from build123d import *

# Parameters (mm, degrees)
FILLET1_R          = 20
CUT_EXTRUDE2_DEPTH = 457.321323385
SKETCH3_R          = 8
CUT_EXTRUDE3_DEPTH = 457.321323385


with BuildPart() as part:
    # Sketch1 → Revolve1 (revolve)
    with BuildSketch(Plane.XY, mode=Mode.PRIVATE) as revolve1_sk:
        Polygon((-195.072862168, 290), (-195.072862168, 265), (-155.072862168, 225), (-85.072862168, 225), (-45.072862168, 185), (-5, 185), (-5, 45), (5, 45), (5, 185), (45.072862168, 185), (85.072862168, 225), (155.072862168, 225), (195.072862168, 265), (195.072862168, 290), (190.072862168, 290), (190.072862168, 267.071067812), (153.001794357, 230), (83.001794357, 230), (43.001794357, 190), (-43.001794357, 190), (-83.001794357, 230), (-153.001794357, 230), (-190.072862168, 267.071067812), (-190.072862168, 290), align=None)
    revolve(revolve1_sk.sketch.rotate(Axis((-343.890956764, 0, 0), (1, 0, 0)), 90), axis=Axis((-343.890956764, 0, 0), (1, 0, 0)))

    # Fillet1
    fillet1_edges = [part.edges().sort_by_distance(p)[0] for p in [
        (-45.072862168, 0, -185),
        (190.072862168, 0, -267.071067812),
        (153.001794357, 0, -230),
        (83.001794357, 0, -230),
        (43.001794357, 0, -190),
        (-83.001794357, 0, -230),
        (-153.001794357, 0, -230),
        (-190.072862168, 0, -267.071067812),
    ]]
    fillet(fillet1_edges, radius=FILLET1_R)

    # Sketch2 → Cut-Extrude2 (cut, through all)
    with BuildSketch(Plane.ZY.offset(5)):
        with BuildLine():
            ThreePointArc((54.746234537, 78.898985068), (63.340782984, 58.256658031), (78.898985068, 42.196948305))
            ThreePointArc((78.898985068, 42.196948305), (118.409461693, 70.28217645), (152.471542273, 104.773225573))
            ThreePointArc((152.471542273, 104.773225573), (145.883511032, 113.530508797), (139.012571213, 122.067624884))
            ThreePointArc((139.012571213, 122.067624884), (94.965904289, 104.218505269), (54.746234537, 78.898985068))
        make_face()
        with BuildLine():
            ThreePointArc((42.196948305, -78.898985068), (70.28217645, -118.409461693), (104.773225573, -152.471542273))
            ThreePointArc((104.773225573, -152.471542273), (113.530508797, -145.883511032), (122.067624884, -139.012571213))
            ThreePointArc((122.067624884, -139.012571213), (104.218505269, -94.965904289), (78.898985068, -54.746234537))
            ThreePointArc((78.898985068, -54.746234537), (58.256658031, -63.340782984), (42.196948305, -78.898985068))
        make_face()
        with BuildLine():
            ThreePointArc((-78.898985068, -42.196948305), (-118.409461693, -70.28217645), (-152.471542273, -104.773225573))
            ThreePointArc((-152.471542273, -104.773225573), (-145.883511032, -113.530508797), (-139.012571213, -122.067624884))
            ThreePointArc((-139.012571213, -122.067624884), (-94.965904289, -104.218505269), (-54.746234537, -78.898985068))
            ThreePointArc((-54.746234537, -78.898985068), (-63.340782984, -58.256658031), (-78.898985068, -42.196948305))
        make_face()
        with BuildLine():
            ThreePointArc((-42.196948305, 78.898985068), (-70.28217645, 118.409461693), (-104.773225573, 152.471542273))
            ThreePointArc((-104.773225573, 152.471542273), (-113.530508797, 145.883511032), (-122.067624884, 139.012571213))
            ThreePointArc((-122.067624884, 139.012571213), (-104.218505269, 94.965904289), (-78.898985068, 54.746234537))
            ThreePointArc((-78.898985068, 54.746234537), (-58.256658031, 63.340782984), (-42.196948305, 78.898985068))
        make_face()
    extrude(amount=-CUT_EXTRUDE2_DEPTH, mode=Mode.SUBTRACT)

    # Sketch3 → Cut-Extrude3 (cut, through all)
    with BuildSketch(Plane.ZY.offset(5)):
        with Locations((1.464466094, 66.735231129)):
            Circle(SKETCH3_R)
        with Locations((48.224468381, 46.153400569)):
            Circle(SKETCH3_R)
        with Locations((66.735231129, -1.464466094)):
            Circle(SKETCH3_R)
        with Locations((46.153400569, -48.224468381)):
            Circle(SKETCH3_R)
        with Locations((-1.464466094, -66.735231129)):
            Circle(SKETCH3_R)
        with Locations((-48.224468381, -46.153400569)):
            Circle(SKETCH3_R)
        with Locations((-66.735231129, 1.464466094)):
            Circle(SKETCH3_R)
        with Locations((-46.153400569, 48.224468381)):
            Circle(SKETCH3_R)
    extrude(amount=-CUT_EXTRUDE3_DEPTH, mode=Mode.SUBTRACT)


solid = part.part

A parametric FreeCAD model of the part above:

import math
import FreeCAD as App
import Part
import Sketcher

V = App.Vector


def edges_at(feature, points):
    """Names of the edges that pass closest to the given points."""
    edges = feature.Shape.Edges
    near = lambda p: min(range(len(edges)), key=lambda i: edges[i].distToShape(Part.Vertex(*p))[0])
    return sorted({f"Edge{near(p) + 1}" for p in points})


def add_polygon(sketch, points):
    """Adds a closed chain of lines whose ends are joined by coincident constraints."""
    first, n = sketch.GeometryCount, len(points)
    for a, b in zip(points, points[1:] + points[:1]):
        sketch.addGeometry(Part.LineSegment(App.Vector(*a, 0), App.Vector(*b, 0)), False)
    for i in range(n):
        sketch.addConstraint(Sketcher.Constraint("Coincident", first + i, 2, first + (i + 1) % n, 1))

doc = App.newDocument("Part")
body = doc.addObject("PartDesign::Body", "Body")

sketch1 = doc.addObject("Sketcher::SketchObject", "Sketch")
body.addObject(sketch1)
sketch1.AttachmentSupport = (doc.XY_Plane, [""])
sketch1.MapMode = "FlatFace"
add_polygon(sketch1, [(-195, 290), (-195, 265), (-155, 225), (-85, 225), (-45, 185), (-5, 185), (-5, 45), (5, 45), (5, 185), (45, 185), (85, 225), (155, 225), (195, 265), (195, 290), (190, 290), (190, 267), (153, 230), (83, 230), (43, 190), (-43, 190), (-83, 230), (-153, 230), (-190, 267), (-190, 290)])
sketch1.addConstraint([
    Sketcher.Constraint("Vertical", 0),
    Sketcher.Constraint("Horizontal", 2),
    Sketcher.Constraint("Horizontal", 4),
    Sketcher.Constraint("Vertical", 5),
    Sketcher.Constraint("Horizontal", 6),
    Sketcher.Constraint("Vertical", 7),
    Sketcher.Constraint("Horizontal", 8),
    Sketcher.Constraint("Horizontal", 10),
    Sketcher.Constraint("Vertical", 12),
    Sketcher.Constraint("Horizontal", 13),
    Sketcher.Constraint("Vertical", 14),
    Sketcher.Constraint("Horizontal", 16),
    Sketcher.Constraint("Horizontal", 18),
    Sketcher.Constraint("Horizontal", 20),
    Sketcher.Constraint("Vertical", 22),
    Sketcher.Constraint("Horizontal", 23),
    Sketcher.Constraint("Symmetric", 4, 2, 7, 2, -2),
    Sketcher.Constraint("Symmetric", 2, 2, 9, 2, -2),
    Sketcher.Constraint("Symmetric", 0, 2, 11, 2, -2),
    Sketcher.Constraint("Symmetric", 16, 2, 19, 2, -2),
    Sketcher.Constraint("Symmetric", 14, 2, 21, 2, -2),
    Sketcher.Constraint("Parallel", 1, 3),
    Sketcher.Constraint("Perpendicular", 3, 9),
    Sketcher.Constraint("Parallel", 9, 11),
    Sketcher.Constraint("Parallel", 11, 15),
    Sketcher.Constraint("Parallel", 15, 17),
    Sketcher.Constraint("Perpendicular", 17, 19),
    Sketcher.Constraint("Parallel", 19, 21),
    Sketcher.Constraint("Horizontal", 13, 2, 22, 2),
    Sketcher.Constraint("Equal", 4, 8),
    Sketcher.Constraint("Equal", 10, 16),
    Sketcher.Constraint("Equal", 1, 3),
    Sketcher.Constraint("Equal", 11, 17),
    Sketcher.Constraint("DistanceX", 2, 1, 2, 2, 70.0),
    Sketcher.Constraint("DistanceX", 6, 1, 6, 2, 10.0),
    Sketcher.Constraint("DistanceX", 13, 2, 13, 1, 5.0),
    Sketcher.Constraint("DistanceY", 0, 2, 0, 1, 25.0),
    Sketcher.Constraint("DistanceY", 5, 2, 5, 1, 140.0),
    Sketcher.Constraint("DistanceY", -1, 1, 0, 2, 265.0),
    Sketcher.Constraint("DistanceY", -1, 1, 1, 2, 225.0),
    Sketcher.Constraint("DistanceY", -1, 1, 15, 2, 230.0),
    Sketcher.Constraint("DistanceX", 18, 2, 18, 1, 86.003589),
    Sketcher.Constraint("DistanceX", 4, 1, 4, 2, 40.072862),
])
revolution = doc.addObject("PartDesign::Revolution", "Revolution")
body.addObject(revolution)
revolution.Profile = sketch1
revolution.ReferenceAxis = (sketch1, ["H_Axis"])
revolution.Angle = 360
doc.recompute()

fillet = doc.addObject("PartDesign::Fillet", "Fillet")
body.addObject(fillet)
fillet.Base = (revolution, edges_at(revolution, [
    (-45.073, 0, -185),
    (190.073, 0, -267.071),
    (153.002, 0, -230),
    (83.002, 0, -230),
    (43.002, 0, -190),
    (-83.002, 0, -230),
    (-153.002, 0, -230),
    (-190.073, 0, -267.071),
]))
fillet.Radius = 20

sketch2 = doc.addObject("Sketcher::SketchObject", "Sketch001")
body.addObject(sketch2)
sketch2.AttachmentSupport = (doc.YZ_Plane, [""])
sketch2.MapMode = "FlatFace"
sketch2.AttachmentOffset = App.Placement(V(0, 0, -5), App.Rotation())
sketch2.addGeometry([
    Part.ArcOfCircle(Part.Circle(V(91, 113, 0), V(0, 0, 1), 60), math.radians(-145), math.radians(-102)),
    Part.ArcOfCircle(Part.Circle(V(283, -63, 0), V(0, 0, 1), 279), math.radians(129.67), math.radians(149.57)),
    Part.ArcOfCircle(Part.Circle(V(-92, -118, 0), V(0, 0, 1), 335), math.radians(50.23), math.radians(53.98)),
    Part.ArcOfCircle(Part.Circle(V(-135, 218, 0), V(0, 0, 1), 269), math.radians(-37), math.radians(-17)),
    Part.ArcOfCircle(Part.Circle(V(63, 283, 0), V(0, 0, 1), 279), math.radians(-140.33), math.radians(-120.43)),
    Part.ArcOfCircle(Part.Circle(V(118, -92, 0), V(0, 0, 1), 335), math.radians(140.23), math.radians(143.98)),
    Part.ArcOfCircle(Part.Circle(V(-218, -135, 0), V(0, 0, 1), 269), math.radians(53), math.radians(73)),
    Part.ArcOfCircle(Part.Circle(V(-113, 91, 0), V(0, 0, 1), 60), math.radians(-55), math.radians(-12)),
    Part.ArcOfCircle(Part.Circle(V(-283, 63, 0), V(0, 0, 1), 279), math.radians(-50.33), math.radians(-30.43)),
    Part.ArcOfCircle(Part.Circle(V(92, 118, 0), V(0, 0, 1), 335), math.radians(-129.77), math.radians(-126.02)),
    Part.ArcOfCircle(Part.Circle(V(135, -218, 0), V(0, 0, 1), 269), math.radians(143), math.radians(163)),
    Part.ArcOfCircle(Part.Circle(V(-91, -113, 0), V(0, 0, 1), 60), math.radians(35), math.radians(78)),
    Part.ArcOfCircle(Part.Circle(V(-63, -283, 0), V(0, 0, 1), 279), math.radians(39.67), math.radians(59.57)),
    Part.ArcOfCircle(Part.Circle(V(-118, 92, 0), V(0, 0, 1), 335), math.radians(-39.77), math.radians(-36.02)),
    Part.ArcOfCircle(Part.Circle(V(218, 135, 0), V(0, 0, 1), 269), math.radians(-127), math.radians(-107)),
    Part.ArcOfCircle(Part.Circle(V(113, -91, 0), V(0, 0, 1), 60), math.radians(125), math.radians(168)),
], False)
sketch2.addConstraint([
    Sketcher.Constraint("Coincident", 0, 1, 1, 2),
    Sketcher.Constraint("Coincident", 1, 1, 2, 2),
    Sketcher.Constraint("Coincident", 2, 1, 3, 2),
    Sketcher.Constraint("Coincident", 3, 1, 0, 2),
    Sketcher.Constraint("Coincident", 4, 1, 5, 2),
    Sketcher.Constraint("Coincident", 5, 1, 6, 2),
    Sketcher.Constraint("Coincident", 6, 1, 7, 2),
    Sketcher.Constraint("Coincident", 7, 1, 4, 2),
    Sketcher.Constraint("Coincident", 8, 1, 9, 2),
    Sketcher.Constraint("Coincident", 9, 1, 10, 2),
    Sketcher.Constraint("Coincident", 10, 1, 11, 2),
    Sketcher.Constraint("Coincident", 11, 1, 8, 2),
    Sketcher.Constraint("Coincident", 12, 1, 13, 2),
    Sketcher.Constraint("Coincident", 13, 1, 14, 2),
    Sketcher.Constraint("Coincident", 14, 1, 15, 2),
    Sketcher.Constraint("Coincident", 15, 1, 12, 2),
    Sketcher.Constraint("Equal", 1, 4),
    Sketcher.Constraint("Equal", 2, 5),
    Sketcher.Constraint("Equal", 3, 6),
    Sketcher.Constraint("Equal", 0, 7),
    Sketcher.Constraint("Equal", 4, 8),
    Sketcher.Constraint("Equal", 5, 9),
    Sketcher.Constraint("Equal", 6, 10),
    Sketcher.Constraint("Equal", 7, 11),
    Sketcher.Constraint("Equal", 8, 12),
    Sketcher.Constraint("Equal", 9, 13),
    Sketcher.Constraint("Equal", 10, 14),
    Sketcher.Constraint("Equal", 11, 15),
    Sketcher.Constraint("Symmetric", 1, 3, 8, 3, -1, 1),
    Sketcher.Constraint("Symmetric", 2, 3, 9, 3, -1, 1),
    Sketcher.Constraint("Symmetric", 3, 3, 10, 3, -1, 1),
    Sketcher.Constraint("Symmetric", 0, 3, 11, 3, -1, 1),
    Sketcher.Constraint("Symmetric", 4, 3, 12, 3, -1, 1),
    Sketcher.Constraint("Symmetric", 5, 3, 13, 3, -1, 1),
    Sketcher.Constraint("Symmetric", 6, 3, 14, 3, -1, 1),
    Sketcher.Constraint("Symmetric", 7, 3, 15, 3, -1, 1),
    Sketcher.Constraint("Horizontal", 0, 1, 6, 1),
    Sketcher.Constraint("Vertical", 7, 1, 10, 1),
    Sketcher.Constraint("Radius", 2, 335.0),
    Sketcher.Constraint("Radius", 0, 59.975731),
    Sketcher.Constraint("Radius", 1, 279.429209),
    Sketcher.Constraint("Radius", 3, 269.097359),
    Sketcher.Constraint("DistanceY", 2, 3, -1, 1, 118.491898),
    Sketcher.Constraint("DistanceX", -1, 1, 5, 3, 118.491898),
    Sketcher.Constraint("DistanceX", 6, 3, 0, 3, 308.8852),
    Sketcher.Constraint("DistanceY", 8, 3, 3, 3, 155.0296),
    Sketcher.Constraint("DistanceX", 6, 3, 12, 3, 155.0296),
    Sketcher.Constraint("DistanceX", 7, 3, 0, 1, 155.638298),
    Sketcher.Constraint("DistanceX", 1, 1, 2, 1, 17.294399),
    Sketcher.Constraint("DistanceY", 4, 1, 5, 1, 17.294399),
    Sketcher.Constraint("DistanceY", -1, 1, 0, 3, 113.44135),
    Sketcher.Constraint("DistanceX", 2, 3, -1, 1, 92.213612),
    Sketcher.Constraint("DistanceX", 3, 3, -1, 1, 135.280779),
    Sketcher.Constraint("DistanceY", 5, 3, -1, 1, 92.213612),
    Sketcher.Constraint("DistanceY", 6, 3, -1, 1, 135.280779),
    Sketcher.Constraint("DistanceX", 7, 3, -1, 1, 113.44135),
])
pocket1 = doc.addObject("PartDesign::Pocket", "Pocket")
body.addObject(pocket1)
pocket1.Profile = sketch2
pocket1.Type = "ThroughAll"
pocket1.Reversed = True

sketch3 = doc.addObject("Sketcher::SketchObject", "Sketch002")
body.addObject(sketch3)
sketch3.AttachmentSupport = (doc.YZ_Plane, [""])
sketch3.MapMode = "FlatFace"
sketch3.AttachmentOffset = App.Placement(V(0, 0, -5), App.Rotation())
sketch3.addGeometry([
    Part.Circle(V(67, 1, 0), V(0, 0, 1), 8),
    Part.Circle(V(46, 48, 0), V(0, 0, 1), 8),
    Part.Circle(V(-1, 67, 0), V(0, 0, 1), 8),
    Part.Circle(V(-48, 46, 0), V(0, 0, 1), 8),
    Part.Circle(V(-67, -1, 0), V(0, 0, 1), 8),
    Part.Circle(V(-46, -48, 0), V(0, 0, 1), 8),
    Part.Circle(V(1, -67, 0), V(0, 0, 1), 8),
    Part.Circle(V(48, -46, 0), V(0, 0, 1), 8),
], False)
sketch3.addConstraint([
    Sketcher.Constraint("Equal", 0, 1),
    Sketcher.Constraint("Equal", 1, 2),
    Sketcher.Constraint("Equal", 2, 3),
    Sketcher.Constraint("Equal", 3, 4),
    Sketcher.Constraint("Equal", 4, 5),
    Sketcher.Constraint("Equal", 5, 6),
    Sketcher.Constraint("Equal", 6, 7),
    Sketcher.Constraint("Symmetric", 0, 3, 4, 3, -1, 1),
    Sketcher.Constraint("Symmetric", 1, 3, 5, 3, -1, 1),
    Sketcher.Constraint("Symmetric", 2, 3, 6, 3, -1, 1),
    Sketcher.Constraint("Symmetric", 3, 3, 7, 3, -1, 1),
    Sketcher.Constraint("Diameter", 0, 16.0),
    Sketcher.Constraint("DistanceX", -1, 1, 1, 3, 46.153401),
    Sketcher.Constraint("DistanceY", -1, 1, 3, 3, 46.153401),
    Sketcher.Constraint("DistanceX", 3, 3, 0, 3, 114.9597),
    Sketcher.Constraint("DistanceY", 5, 3, 2, 3, 114.9597),
    Sketcher.Constraint("DistanceX", -1, 1, 0, 3, 66.735231),
    Sketcher.Constraint("DistanceY", -1, 1, 1, 3, 48.224468),
    Sketcher.Constraint("DistanceY", -1, 1, 0, 3, 1.464466),
    Sketcher.Constraint("DistanceX", 2, 3, -1, 1, 1.464466),
])
pocket2 = doc.addObject("PartDesign::Pocket", "Pocket001")
body.addObject(pocket2)
pocket2.Profile = sketch3
pocket2.Type = "ThroughAll"
pocket2.Reversed = True

doc.recompute()
